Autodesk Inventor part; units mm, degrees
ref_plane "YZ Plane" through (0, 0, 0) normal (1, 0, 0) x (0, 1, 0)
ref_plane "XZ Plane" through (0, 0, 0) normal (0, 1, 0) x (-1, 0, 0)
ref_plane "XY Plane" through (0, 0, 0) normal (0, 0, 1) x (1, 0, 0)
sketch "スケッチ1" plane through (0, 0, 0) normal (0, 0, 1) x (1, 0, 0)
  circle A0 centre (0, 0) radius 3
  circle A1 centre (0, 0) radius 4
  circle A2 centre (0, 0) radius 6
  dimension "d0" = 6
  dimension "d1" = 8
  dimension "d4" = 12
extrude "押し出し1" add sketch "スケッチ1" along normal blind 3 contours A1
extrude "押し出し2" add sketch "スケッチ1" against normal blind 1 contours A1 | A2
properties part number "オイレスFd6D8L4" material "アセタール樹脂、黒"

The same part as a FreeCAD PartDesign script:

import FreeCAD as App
import Part
import Sketcher

V = App.Vector

doc = App.newDocument("Part")
body = doc.addObject("PartDesign::Body", "Body")

sketch1 = body.newObject("Sketcher::SketchObject", "Sketch")
sketch1.AttachmentSupport = (doc.getObject("XY_Plane"), [""])
sketch1.MapMode = "FlatFace"
sketch1.addGeometry([
    Part.Circle(V(0, 0, 0), V(0, 0, 1), 4),
    Part.Circle(V(0, 0, 0), V(0, 0, 1), 3),
], False)
sketch1.addConstraint([
    Sketcher.Constraint("Coincident", 0, 3, -1, 1),
    Sketcher.Constraint("Coincident", 1, 3, -1, 1),
    Sketcher.Constraint("Diameter", 0, 8.0),
    Sketcher.Constraint("Diameter", 1, 6.0),
])
pad1 = body.newObject("PartDesign::Pad", "Pad")
pad1.Profile = sketch1
pad1.Length = 3

sketch2 = body.newObject("Sketcher::SketchObject", "Sketch001")
sketch2.AttachmentSupport = (doc.getObject("XY_Plane"), [""])
sketch2.MapMode = "FlatFace"
sketch2.addGeometry([
    Part.Circle(V(0, 0, 0), V(0, 0, 1), 6),
    Part.Circle(V(0, 0, 0), V(0, 0, 1), 3),
], False)
sketch2.addConstraint([
    Sketcher.Constraint("Coincident", 0, 3, -1, 1),
    Sketcher.Constraint("Coincident", 1, 3, -1, 1),
    Sketcher.Constraint("Diameter", 0, 12.0),
    Sketcher.Constraint("Diameter", 1, 6.0),
])
pad2 = body.newObject("PartDesign::Pad", "Pad001")
pad2.Profile = sketch2
pad2.Length = 1
pad2.Reversed = True

doc.recompute()
